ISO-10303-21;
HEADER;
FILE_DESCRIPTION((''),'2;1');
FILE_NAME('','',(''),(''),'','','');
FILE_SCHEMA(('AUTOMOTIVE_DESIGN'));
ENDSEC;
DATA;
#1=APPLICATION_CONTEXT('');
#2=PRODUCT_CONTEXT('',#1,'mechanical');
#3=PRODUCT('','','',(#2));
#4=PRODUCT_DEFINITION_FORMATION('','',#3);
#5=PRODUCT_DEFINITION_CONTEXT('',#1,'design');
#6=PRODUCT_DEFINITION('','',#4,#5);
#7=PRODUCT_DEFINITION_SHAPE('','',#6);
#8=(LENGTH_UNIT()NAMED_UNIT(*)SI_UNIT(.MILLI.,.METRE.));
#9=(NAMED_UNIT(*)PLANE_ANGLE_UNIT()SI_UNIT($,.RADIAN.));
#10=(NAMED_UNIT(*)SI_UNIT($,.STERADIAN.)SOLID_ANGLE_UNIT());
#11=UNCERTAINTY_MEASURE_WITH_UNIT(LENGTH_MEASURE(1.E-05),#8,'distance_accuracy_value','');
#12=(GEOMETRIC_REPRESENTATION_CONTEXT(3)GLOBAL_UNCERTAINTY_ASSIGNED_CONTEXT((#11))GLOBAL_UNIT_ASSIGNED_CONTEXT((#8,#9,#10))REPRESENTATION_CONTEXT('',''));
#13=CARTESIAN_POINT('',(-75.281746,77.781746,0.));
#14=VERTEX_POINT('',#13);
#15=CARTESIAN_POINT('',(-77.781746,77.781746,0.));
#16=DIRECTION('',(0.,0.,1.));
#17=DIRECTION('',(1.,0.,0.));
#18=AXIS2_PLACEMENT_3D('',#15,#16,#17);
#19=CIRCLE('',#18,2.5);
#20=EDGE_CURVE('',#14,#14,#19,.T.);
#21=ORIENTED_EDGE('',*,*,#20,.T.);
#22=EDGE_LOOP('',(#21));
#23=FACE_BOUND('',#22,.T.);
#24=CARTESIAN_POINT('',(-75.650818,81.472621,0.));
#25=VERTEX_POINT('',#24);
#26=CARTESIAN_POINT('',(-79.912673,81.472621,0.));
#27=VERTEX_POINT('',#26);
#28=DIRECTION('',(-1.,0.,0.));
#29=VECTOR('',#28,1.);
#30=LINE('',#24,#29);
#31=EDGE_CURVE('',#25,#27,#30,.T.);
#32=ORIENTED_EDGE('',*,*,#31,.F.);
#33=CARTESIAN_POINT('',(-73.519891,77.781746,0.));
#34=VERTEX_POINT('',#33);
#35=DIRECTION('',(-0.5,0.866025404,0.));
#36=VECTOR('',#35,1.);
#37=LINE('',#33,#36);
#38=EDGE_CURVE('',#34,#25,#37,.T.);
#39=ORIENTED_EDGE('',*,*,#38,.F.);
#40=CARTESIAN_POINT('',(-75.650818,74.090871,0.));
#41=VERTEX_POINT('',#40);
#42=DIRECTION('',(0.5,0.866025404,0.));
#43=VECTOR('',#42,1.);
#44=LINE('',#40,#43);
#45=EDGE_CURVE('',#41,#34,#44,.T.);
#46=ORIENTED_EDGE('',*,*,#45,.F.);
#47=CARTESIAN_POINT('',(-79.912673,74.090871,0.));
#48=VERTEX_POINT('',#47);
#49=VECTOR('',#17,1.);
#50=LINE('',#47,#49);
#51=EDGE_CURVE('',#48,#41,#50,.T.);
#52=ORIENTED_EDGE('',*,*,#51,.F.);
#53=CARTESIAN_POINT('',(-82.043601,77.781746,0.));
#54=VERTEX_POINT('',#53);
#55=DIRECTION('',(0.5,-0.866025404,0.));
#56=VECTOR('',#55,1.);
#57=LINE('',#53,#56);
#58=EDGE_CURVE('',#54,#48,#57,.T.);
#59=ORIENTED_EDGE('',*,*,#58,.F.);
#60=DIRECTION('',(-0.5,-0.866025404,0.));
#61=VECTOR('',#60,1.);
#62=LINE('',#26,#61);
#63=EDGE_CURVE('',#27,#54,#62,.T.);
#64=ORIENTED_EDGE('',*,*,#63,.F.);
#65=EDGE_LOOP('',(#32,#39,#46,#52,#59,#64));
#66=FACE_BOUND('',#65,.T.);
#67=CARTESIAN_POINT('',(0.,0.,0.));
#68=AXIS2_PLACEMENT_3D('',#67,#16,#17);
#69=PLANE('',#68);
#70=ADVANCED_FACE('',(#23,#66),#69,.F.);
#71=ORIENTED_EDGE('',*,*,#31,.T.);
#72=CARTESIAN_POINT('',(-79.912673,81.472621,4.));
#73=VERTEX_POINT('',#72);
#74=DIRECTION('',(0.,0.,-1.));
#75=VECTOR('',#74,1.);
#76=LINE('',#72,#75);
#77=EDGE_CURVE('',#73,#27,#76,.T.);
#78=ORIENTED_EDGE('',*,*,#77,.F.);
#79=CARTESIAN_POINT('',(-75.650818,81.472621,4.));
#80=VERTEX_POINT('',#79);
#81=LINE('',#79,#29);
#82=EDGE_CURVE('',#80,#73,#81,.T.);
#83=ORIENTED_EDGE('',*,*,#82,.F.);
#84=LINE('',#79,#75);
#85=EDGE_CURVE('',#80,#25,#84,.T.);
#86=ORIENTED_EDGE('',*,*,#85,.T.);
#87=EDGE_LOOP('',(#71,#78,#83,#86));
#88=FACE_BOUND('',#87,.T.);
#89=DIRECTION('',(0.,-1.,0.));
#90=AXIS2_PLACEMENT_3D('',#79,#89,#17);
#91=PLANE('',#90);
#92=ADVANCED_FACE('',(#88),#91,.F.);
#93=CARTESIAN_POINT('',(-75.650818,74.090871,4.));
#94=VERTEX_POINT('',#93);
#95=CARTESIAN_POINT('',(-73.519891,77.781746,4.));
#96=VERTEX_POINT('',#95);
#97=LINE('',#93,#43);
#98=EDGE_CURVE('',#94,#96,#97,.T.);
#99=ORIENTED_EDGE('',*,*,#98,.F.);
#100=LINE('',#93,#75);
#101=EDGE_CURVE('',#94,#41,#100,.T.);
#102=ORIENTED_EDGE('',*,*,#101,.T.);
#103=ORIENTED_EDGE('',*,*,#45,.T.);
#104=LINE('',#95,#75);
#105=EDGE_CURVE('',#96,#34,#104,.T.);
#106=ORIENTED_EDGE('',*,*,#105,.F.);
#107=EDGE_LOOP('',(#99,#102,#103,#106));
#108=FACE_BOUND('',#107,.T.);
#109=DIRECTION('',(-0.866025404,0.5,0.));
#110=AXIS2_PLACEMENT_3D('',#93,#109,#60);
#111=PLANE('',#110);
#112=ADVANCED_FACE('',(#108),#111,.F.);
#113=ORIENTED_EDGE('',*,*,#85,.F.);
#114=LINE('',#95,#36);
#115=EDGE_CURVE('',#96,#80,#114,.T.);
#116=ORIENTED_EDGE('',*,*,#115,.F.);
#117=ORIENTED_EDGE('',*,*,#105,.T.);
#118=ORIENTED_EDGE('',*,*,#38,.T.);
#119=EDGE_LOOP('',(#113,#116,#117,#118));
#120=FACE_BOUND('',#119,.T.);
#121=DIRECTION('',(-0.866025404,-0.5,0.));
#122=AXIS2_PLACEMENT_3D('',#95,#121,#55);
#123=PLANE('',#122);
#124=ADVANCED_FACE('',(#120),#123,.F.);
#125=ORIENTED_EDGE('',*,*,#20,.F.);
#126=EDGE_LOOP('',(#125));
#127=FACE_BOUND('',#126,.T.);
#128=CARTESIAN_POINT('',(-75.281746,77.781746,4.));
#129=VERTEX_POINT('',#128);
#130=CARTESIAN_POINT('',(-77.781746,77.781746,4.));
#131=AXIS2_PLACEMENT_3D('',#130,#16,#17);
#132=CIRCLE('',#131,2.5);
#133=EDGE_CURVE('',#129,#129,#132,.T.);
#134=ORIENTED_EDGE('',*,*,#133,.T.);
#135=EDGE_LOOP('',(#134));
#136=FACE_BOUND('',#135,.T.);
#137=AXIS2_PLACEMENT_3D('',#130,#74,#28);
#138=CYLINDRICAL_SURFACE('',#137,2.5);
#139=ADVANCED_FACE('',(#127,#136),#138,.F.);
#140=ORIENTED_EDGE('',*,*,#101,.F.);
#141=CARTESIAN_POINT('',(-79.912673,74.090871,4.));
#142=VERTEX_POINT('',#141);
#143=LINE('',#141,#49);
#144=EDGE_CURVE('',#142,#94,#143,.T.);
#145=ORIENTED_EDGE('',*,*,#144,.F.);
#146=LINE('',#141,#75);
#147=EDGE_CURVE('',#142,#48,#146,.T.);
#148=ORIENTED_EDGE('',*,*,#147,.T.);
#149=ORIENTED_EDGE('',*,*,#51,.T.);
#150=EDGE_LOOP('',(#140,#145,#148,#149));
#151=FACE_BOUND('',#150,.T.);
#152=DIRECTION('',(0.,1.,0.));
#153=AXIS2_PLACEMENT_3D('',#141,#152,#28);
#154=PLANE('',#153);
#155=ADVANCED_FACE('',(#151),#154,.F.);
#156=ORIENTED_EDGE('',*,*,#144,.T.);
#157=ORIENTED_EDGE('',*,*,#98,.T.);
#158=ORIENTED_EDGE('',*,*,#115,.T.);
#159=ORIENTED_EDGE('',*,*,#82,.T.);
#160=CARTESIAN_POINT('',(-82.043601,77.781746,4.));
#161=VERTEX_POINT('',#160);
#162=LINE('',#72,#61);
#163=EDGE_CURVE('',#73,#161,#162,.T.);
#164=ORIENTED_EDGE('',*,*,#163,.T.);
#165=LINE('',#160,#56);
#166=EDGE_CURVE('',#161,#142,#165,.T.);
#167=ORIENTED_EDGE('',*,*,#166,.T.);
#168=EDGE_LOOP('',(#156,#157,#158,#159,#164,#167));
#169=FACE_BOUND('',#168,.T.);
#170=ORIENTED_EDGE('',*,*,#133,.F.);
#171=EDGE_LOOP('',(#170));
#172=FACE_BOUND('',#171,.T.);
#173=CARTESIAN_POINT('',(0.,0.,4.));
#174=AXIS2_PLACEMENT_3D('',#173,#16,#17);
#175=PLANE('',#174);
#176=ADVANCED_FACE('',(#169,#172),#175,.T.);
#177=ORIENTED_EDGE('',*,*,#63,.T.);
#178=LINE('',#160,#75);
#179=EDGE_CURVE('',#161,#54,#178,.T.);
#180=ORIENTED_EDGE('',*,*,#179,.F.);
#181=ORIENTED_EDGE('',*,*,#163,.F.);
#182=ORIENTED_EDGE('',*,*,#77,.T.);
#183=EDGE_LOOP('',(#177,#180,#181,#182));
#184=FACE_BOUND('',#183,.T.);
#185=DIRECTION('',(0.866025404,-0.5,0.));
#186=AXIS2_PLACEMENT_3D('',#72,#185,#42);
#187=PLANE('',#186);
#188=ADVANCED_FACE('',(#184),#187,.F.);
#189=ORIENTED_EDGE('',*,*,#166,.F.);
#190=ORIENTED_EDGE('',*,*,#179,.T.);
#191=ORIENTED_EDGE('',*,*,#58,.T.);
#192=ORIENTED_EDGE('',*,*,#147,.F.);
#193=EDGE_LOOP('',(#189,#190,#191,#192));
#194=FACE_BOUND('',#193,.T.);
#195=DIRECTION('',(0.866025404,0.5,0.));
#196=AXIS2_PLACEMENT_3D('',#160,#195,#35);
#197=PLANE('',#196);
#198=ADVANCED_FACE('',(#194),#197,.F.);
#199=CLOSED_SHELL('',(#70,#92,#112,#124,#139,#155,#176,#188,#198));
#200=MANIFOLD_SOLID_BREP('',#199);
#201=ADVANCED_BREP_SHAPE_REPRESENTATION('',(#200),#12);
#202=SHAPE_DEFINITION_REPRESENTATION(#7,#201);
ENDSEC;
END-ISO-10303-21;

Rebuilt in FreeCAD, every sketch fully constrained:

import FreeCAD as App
import Part
import Sketcher
from FreeCAD import Vector
Q = App.Units.Quantity

doc = App.newDocument("Part")
params = doc.addObject("Spreadsheet::Sheet", "Params")
for row, (alias, value) in enumerate([
    ("sketch1_diameter", "5 mm"),
    ("pad1_length", "4 mm"),
], start=1):
    params.set(f"A{row}", alias)
    params.set(f"B{row}", "=" + value)
    params.setAlias(f"B{row}", alias)

body = doc.addObject("PartDesign::Body", "Body")

sketch1 = body.newObject("Sketcher::SketchObject", "Sketch")
sketch1.AttachmentSupport = (doc.getObject("XY_Plane"), [""])
sketch1.MapMode = "FlatFace"
sketch1.addGeometry(Part.LineSegment(Vector(-73.5, 77.8, 0), Vector(-75.7, 81.5, 0)), False)
sketch1.addGeometry(Part.LineSegment(Vector(-75.7, 81.5, 0), Vector(-79.9, 81.5, 0)), False)
sketch1.addGeometry(Part.LineSegment(Vector(-79.9, 81.5, 0), Vector(-82, 77.8, 0)), False)
sketch1.addGeometry(Part.LineSegment(Vector(-82, 77.8, 0), Vector(-79.9, 74.1, 0)), False)
sketch1.addGeometry(Part.LineSegment(Vector(-79.9, 74.1, 0), Vector(-75.7, 74.1, 0)), False)
sketch1.addGeometry(Part.LineSegment(Vector(-75.7, 74.1, 0), Vector(-73.5, 77.8, 0)), False)
sketch1.addGeometry(Part.Circle(Vector(-77.8, 77.8, 0), Vector(0, 0, 1), 2.5), False)
sketch1.addConstraint(Sketcher.Constraint("Coincident", 0, 2, 1, 1))
sketch1.addConstraint(Sketcher.Constraint("Coincident", 1, 2, 2, 1))
sketch1.addConstraint(Sketcher.Constraint("Coincident", 2, 2, 3, 1))
sketch1.addConstraint(Sketcher.Constraint("Coincident", 3, 2, 4, 1))
sketch1.addConstraint(Sketcher.Constraint("Coincident", 4, 2, 5, 1))
sketch1.addConstraint(Sketcher.Constraint("Coincident", 5, 2, 0, 1))
sketch1.addConstraint(Sketcher.Constraint("Horizontal", 1))
sketch1.addConstraint(Sketcher.Constraint("Horizontal", 4))
sketch1.addConstraint(Sketcher.Constraint("Parallel", 0, 3))
sketch1.addConstraint(Sketcher.Constraint("Parallel", 2, 5))
sketch1.addConstraint(Sketcher.Constraint("Horizontal", 6, 3, 2, 2))
sketch1.addConstraint(Sketcher.Constraint("Horizontal", 2, 2, 5, 2))
sketch1.addConstraint(Sketcher.Constraint("Vertical", 1, 2, 3, 2))
sketch1.addConstraint(Sketcher.Constraint("Vertical", 0, 2, 4, 2))
sketch1.addConstraint(Sketcher.Constraint("Diameter", 6, Q("5 mm")))
sketch1.addConstraint(Sketcher.Constraint("Angle", 0, Q("120 deg")))
sketch1.addConstraint(Sketcher.Constraint("DistanceX", 2, 2, -1, 1, Q("82.043601 mm")))
sketch1.addConstraint(Sketcher.Constraint("DistanceX", 1, 2, 1, 1, Q("4.261855 mm")))
sketch1.addConstraint(Sketcher.Constraint("DistanceX", 0, 2, -1, 1, Q("75.650818 mm")))
sketch1.addConstraint(Sketcher.Constraint("DistanceY", -1, 1, 0, 2, Q("81.472621 mm")))
sketch1.addConstraint(Sketcher.Constraint("DistanceX", 6, 3, -1, 1, Q("77.781746 mm")))
sketch1.setExpression("Constraints[14]", "Params.sketch1_diameter")
pad1 = body.newObject("PartDesign::Pad", "Pad")
pad1.Profile = sketch1
pad1.setExpression("Length", "Params.pad1_length")

doc.recompute()
